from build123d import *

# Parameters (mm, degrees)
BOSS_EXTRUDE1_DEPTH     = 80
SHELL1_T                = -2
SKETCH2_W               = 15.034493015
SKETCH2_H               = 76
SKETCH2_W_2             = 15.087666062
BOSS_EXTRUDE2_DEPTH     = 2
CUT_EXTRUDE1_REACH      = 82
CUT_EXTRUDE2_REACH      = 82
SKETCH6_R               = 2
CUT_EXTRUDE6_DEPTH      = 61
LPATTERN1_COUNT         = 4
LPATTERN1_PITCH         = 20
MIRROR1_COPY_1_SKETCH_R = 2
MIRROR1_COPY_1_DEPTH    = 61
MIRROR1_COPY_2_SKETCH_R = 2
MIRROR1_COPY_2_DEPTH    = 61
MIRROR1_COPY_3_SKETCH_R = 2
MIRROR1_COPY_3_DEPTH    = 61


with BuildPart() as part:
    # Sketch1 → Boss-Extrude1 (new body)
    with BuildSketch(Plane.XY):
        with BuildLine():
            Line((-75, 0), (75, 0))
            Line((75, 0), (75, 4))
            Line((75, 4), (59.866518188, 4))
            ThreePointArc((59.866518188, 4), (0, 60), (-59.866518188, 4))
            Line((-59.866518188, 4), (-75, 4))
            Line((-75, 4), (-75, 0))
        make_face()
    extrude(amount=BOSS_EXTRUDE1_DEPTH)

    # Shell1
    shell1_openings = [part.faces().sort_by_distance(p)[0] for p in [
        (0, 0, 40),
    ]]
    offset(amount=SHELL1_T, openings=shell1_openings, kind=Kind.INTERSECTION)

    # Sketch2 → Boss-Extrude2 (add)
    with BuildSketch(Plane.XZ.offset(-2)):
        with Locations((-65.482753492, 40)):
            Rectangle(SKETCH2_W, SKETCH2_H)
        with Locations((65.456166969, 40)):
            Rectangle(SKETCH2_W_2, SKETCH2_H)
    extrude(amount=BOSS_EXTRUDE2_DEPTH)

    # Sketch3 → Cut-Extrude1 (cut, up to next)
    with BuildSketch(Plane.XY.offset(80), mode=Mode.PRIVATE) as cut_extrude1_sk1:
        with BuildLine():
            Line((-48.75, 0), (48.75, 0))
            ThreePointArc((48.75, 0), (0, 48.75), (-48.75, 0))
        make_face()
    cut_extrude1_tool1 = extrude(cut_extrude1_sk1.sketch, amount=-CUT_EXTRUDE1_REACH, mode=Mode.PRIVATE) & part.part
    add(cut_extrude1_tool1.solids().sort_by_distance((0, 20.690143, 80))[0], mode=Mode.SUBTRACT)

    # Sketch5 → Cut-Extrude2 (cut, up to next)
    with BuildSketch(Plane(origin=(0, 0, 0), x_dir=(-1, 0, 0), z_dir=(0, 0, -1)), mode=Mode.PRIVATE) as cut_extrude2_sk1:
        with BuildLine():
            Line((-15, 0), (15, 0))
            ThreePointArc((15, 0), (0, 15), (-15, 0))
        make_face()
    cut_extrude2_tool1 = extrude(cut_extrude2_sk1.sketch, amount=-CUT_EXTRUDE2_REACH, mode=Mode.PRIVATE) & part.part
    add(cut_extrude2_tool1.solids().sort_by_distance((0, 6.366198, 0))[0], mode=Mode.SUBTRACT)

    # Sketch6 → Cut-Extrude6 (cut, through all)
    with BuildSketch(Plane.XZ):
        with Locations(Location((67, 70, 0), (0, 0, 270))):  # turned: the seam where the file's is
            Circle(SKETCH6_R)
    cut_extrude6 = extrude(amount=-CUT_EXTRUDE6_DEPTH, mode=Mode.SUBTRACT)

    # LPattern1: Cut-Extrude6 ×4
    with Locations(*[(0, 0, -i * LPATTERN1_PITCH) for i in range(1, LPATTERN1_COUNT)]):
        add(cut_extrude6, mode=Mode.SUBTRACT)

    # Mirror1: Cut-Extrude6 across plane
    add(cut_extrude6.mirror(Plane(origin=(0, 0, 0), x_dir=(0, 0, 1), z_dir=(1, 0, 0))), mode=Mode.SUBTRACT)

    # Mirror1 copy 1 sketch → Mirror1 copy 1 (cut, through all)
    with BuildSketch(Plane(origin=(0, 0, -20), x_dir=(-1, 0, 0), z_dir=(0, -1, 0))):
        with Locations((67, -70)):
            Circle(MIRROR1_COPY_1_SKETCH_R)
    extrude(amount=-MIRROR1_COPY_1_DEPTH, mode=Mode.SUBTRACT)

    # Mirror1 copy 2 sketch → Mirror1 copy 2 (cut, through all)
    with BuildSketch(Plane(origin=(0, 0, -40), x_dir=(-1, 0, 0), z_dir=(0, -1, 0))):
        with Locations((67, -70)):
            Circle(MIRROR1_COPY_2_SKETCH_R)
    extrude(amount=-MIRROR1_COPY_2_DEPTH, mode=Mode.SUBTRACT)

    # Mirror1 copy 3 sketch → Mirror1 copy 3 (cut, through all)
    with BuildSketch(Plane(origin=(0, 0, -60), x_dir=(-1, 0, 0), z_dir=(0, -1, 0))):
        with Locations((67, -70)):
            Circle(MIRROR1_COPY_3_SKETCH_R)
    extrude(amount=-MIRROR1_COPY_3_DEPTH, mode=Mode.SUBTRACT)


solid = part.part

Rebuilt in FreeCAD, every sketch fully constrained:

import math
import FreeCAD as App
import Part
import Sketcher
from FreeCAD import Vector
Q = App.Units.Quantity


def faces_at(feature, points):
    """Names of the faces that lie closest to the given points."""
    faces = feature.Shape.Faces
    near = lambda p: min(range(len(faces)), key=lambda i: faces[i].distToShape(Part.Vertex(*p))[0])
    return sorted({f"Face{near(p) + 1}" for p in points})

doc = App.newDocument("Part")
body = doc.addObject("PartDesign::Body", "Body")

# Sketch on XY plane
sketch1 = doc.addObject("Sketcher::SketchObject", "Sketch")
body.addObject(sketch1)
sketch1.AttachmentSupport = (doc.XY_Plane, [""])
sketch1.MapMode = "FlatFace"
sketch1.addGeometry([
    Part.LineSegment(Vector(-75, 0, 0), Vector(75, 0, 0)),  # 0
    Part.LineSegment(Vector(75, 0, 0), Vector(75, 4, 0)),  # 1
    Part.LineSegment(Vector(75, 4, 0), Vector(59.9, 4, 0)),  # 2
    Part.ArcOfCircle(Part.Circle(Vector(0, 0, 0), Vector(0, 0, 1), 60), math.radians(4), math.radians(176)),  # 3
    Part.LineSegment(Vector(-59.9, 4, 0), Vector(-75, 4, 0)),  # 4
    Part.LineSegment(Vector(-75, 4, 0), Vector(-75, 0, 0)),  # 5
], False)
sketch1.addConstraint([
    Sketcher.Constraint("Coincident", 0, 2, 1, 1),
    Sketcher.Constraint("Coincident", 1, 2, 2, 1),
    Sketcher.Constraint("Coincident", 2, 2, 3, 1),
    Sketcher.Constraint("Coincident", 3, 2, 4, 1),
    Sketcher.Constraint("Coincident", 4, 2, 5, 1),
    Sketcher.Constraint("Coincident", 5, 2, 0, 1),
    Sketcher.Constraint("Horizontal", 0),
    Sketcher.Constraint("Vertical", 1),
    Sketcher.Constraint("Horizontal", 2),
    Sketcher.Constraint("Horizontal", 4),
    Sketcher.Constraint("Vertical", 5),
    Sketcher.Constraint("Coincident", 3, 3, -1, 1),
    Sketcher.Constraint("Symmetric", 0, 2, 5, 2, -1, 1),
    Sketcher.Constraint("Horizontal", 2, 2, 3, 2),
    Sketcher.Constraint("Radius", 3, Q("60 mm")),
    Sketcher.Constraint("DistanceX", 0, 1, 0, 2, Q("150 mm")),
    Sketcher.Constraint("DistanceY", 1, 1, 1, 2, Q("4 mm")),
])
pad1 = doc.addObject("PartDesign::Pad", "Pad")
body.addObject(pad1)
pad1.Profile = sketch1
pad1.Length = 80
doc.recompute()

thickness = doc.addObject("PartDesign::Thickness", "Thickness")
body.addObject(thickness)
thickness.Base = (pad1, faces_at(pad1, [(0, 0, 40)]))
thickness.Value = 2
thickness.Reversed = True
thickness.Join = "Intersection"

# Sketch on XZ plane
sketch2 = doc.addObject("Sketcher::SketchObject", "Sketch001")
body.addObject(sketch2)
sketch2.AttachmentSupport = (doc.XZ_Plane, [""])
sketch2.MapMode = "FlatFace"
sketch2.AttachmentOffset = App.Placement(Vector(0, 0, -2), App.Rotation())
sketch2.addGeometry([
    Part.LineSegment(Vector(-73, 78, 0), Vector(-73, 2, 0)),  # 0
    Part.LineSegment(Vector(-73, 2, 0), Vector(-58, 2, 0)),  # 1
    Part.LineSegment(Vector(-58, 2, 0), Vector(-58, 78, 0)),  # 2
    Part.LineSegment(Vector(-58, 78, 0), Vector(-73, 78, 0)),  # 3
    Part.LineSegment(Vector(58, 78, 0), Vector(58, 2, 0)),  # 4
    Part.LineSegment(Vector(58, 2, 0), Vector(73, 2, 0)),  # 5
    Part.LineSegment(Vector(73, 2, 0), Vector(73, 78, 0)),  # 6
    Part.LineSegment(Vector(73, 78, 0), Vector(58, 78, 0)),  # 7
], False)
sketch2.addConstraint([
    Sketcher.Constraint("Coincident", 0, 2, 1, 1),
    Sketcher.Constraint("Coincident", 1, 2, 2, 1),
    Sketcher.Constraint("Coincident", 2, 2, 3, 1),
    Sketcher.Constraint("Coincident", 3, 2, 0, 1),
    Sketcher.Constraint("Coincident", 4, 2, 5, 1),
    Sketcher.Constraint("Coincident", 5, 2, 6, 1),
    Sketcher.Constraint("Coincident", 6, 2, 7, 1),
    Sketcher.Constraint("Coincident", 7, 2, 4, 1),
    Sketcher.Constraint("Vertical", 0),
    Sketcher.Constraint("Horizontal", 1),
    Sketcher.Constraint("Vertical", 2),
    Sketcher.Constraint("Horizontal", 3),
    Sketcher.Constraint("Vertical", 4),
    Sketcher.Constraint("Horizontal", 5),
    Sketcher.Constraint("Vertical", 6),
    Sketcher.Constraint("Horizontal", 7),
    Sketcher.Constraint("Symmetric", 0, 2, 5, 2, -2),
    Sketcher.Constraint("Horizontal", 3, 2, 6, 2),
    Sketcher.Constraint("DistanceY", 0, 2, 0, 1, Q("76 mm")),
    Sketcher.Constraint("DistanceX", 0, 2, -1, 1, Q("73 mm")),
    Sketcher.Constraint("DistanceY", -1, 1, 0, 2, Q("2 mm")),
    Sketcher.Constraint("DistanceX", 1, 1, 1, 2, Q("15.034493 mm")),
    Sketcher.Constraint("DistanceX", 5, 1, 5, 2, Q("15.087666 mm")),
])
pad2 = doc.addObject("PartDesign::Pad", "Pad001")
body.addObject(pad2)
pad2.Profile = sketch2
pad2.Length = 2

# Sketch on XY plane
sketch3 = doc.addObject("Sketcher::SketchObject", "Sketch002")
body.addObject(sketch3)
sketch3.AttachmentSupport = (doc.XY_Plane, [""])
sketch3.MapMode = "FlatFace"
sketch3.AttachmentOffset = App.Placement(Vector(0, 0, 80), App.Rotation())
sketch3.addGeometry([
    Part.LineSegment(Vector(-49, 0, 0), Vector(49, 0, 0)),
    Part.ArcOfCircle(Part.Circle(Vector(0, 0, 0), Vector(0, 0, 1), 49), math.radians(0), math.radians(180)),
], False)
sketch3.addConstraint([
    Sketcher.Constraint("Coincident", 0, 1, 1, 2),
    Sketcher.Constraint("Coincident", 1, 1, 0, 2),
    Sketcher.Constraint("Horizontal", 0),
    Sketcher.Constraint("Coincident", 1, 3, -1, 1),
    Sketcher.Constraint("PointOnObject", 0, 1, -1),
    Sketcher.Constraint("Radius", 1, Q("48.75 mm")),
])
pocket1 = doc.addObject("PartDesign::Pocket", "Pocket")
body.addObject(pocket1)
pocket1.Profile = sketch3
pocket1.Type = "UpToFirst"

# Sketch on XY plane
sketch4 = doc.addObject("Sketcher::SketchObject", "Sketch003")
body.addObject(sketch4)
sketch4.AttachmentSupport = (doc.XY_Plane, [""])
sketch4.MapMode = "FlatFace"
sketch4.addGeometry([
    Part.LineSegment(Vector(15, 0, 0), Vector(-15, 0, 0)),
    Part.ArcOfCircle(Part.Circle(Vector(0, 0, 0), Vector(0, 0, 1), 15), math.radians(0), math.radians(180)),
], False)
sketch4.addConstraint([
    Sketcher.Constraint("Coincident", 0, 1, 1, 1),
    Sketcher.Constraint("Coincident", 1, 2, 0, 2),
    Sketcher.Constraint("Horizontal", 0),
    Sketcher.Constraint("Coincident", 1, 3, -1, 1),
    Sketcher.Constraint("PointOnObject", 0, 1, -1),
    Sketcher.Constraint("Radius", 1, Q("15 mm")),
])
pocket2 = doc.addObject("PartDesign::Pocket", "Pocket001")
body.addObject(pocket2)
pocket2.Profile = sketch4
pocket2.Type = "UpToFirst"
pocket2.Reversed = True

# Sketch on XZ plane
sketch5 = doc.addObject("Sketcher::SketchObject", "Sketch004")
body.addObject(sketch5)
sketch5.AttachmentSupport = (doc.XZ_Plane, [""])
sketch5.MapMode = "FlatFace"
sketch5.addGeometry(Part.Circle(Vector(67, 70, 0), Vector(0, 0, 1), 2), False)
sketch5.addConstraint([
    Sketcher.Constraint("Diameter", 0, Q("4 mm")),
    Sketcher.Constraint("DistanceX", -1, 1, 0, 3, Q("67 mm")),
    Sketcher.Constraint("DistanceY", -1, 1, 0, 3, Q("70 mm")),
])
pocket3 = doc.addObject("PartDesign::Pocket", "Pocket002")
body.addObject(pocket3)
pocket3.Profile = sketch5
pocket3.Type = "ThroughAll"
doc.recompute()

linearpattern = doc.addObject("PartDesign::LinearPattern", "LinearPattern")
body.addObject(linearpattern)
linearpattern.Originals = [pocket3]
linearpattern.Direction = (doc.Z_Axis, [""])
linearpattern.Mode = "offset"
linearpattern.Offset = 20
linearpattern.Occurrences = 4
linearpattern.Reversed = True
body.Tip = linearpattern
doc.recompute()

mirrored = doc.addObject("PartDesign::Mirrored", "Mirrored")
body.addObject(mirrored)
mirrored.Originals = [pocket3]
mirrored.MirrorPlane = (doc.YZ_Plane, [""])
body.Tip = mirrored

# Sketch on XZ plane
sketch6 = doc.addObject("Sketcher::SketchObject", "Sketch005")
body.addObject(sketch6)
sketch6.AttachmentSupport = (doc.XZ_Plane, [""])
sketch6.MapMode = "FlatFace"
sketch6.addGeometry(Part.Circle(Vector(-67, 50, 0), Vector(0, 0, 1), 2), False)
sketch6.addConstraint([
    Sketcher.Constraint("Diameter", 0, Q("4 mm")),
    Sketcher.Constraint("DistanceX", 0, 3, -1, 1, Q("67 mm")),
    Sketcher.Constraint("DistanceY", -1, 1, 0, 3, Q("50 mm")),
])
pocket4 = doc.addObject("PartDesign::Pocket", "Pocket003")
body.addObject(pocket4)
pocket4.Profile = sketch6
pocket4.Type = "ThroughAll"

# Sketch on XZ plane
sketch7 = doc.addObject("Sketcher::SketchObject", "Sketch006")
body.addObject(sketch7)
sketch7.AttachmentSupport = (doc.XZ_Plane, [""])
sketch7.MapMode = "FlatFace"
sketch7.addGeometry(Part.Circle(Vector(-67, 30, 0), Vector(0, 0, 1), 2), False)
sketch7.addConstraint([
    Sketcher.Constraint("Diameter", 0, Q("4 mm")),
    Sketcher.Constraint("DistanceX", 0, 3, -1, 1, Q("67 mm")),
    Sketcher.Constraint("DistanceY", -1, 1, 0, 3, Q("30 mm")),
])
pocket5 = doc.addObject("PartDesign::Pocket", "Pocket004")
body.addObject(pocket5)
pocket5.Profile = sketch7
pocket5.Type = "ThroughAll"

# Sketch on XZ plane
sketch8 = doc.addObject("Sketcher::SketchObject", "Sketch007")
body.addObject(sketch8)
sketch8.AttachmentSupport = (doc.XZ_Plane, [""])
sketch8.MapMode = "FlatFace"
sketch8.addGeometry(Part.Circle(Vector(-67, 10, 0), Vector(0, 0, 1), 2), False)
sketch8.addConstraint([
    Sketcher.Constraint("Diameter", 0, Q("4 mm")),
    Sketcher.Constraint("DistanceX", 0, 3, -1, 1, Q("67 mm")),
    Sketcher.Constraint("DistanceY", -1, 1, 0, 3, Q("10 mm")),
])
pocket6 = doc.addObject("PartDesign::Pocket", "Pocket005")
body.addObject(pocket6)
pocket6.Profile = sketch8
pocket6.Type = "ThroughAll"

doc.recompute()
